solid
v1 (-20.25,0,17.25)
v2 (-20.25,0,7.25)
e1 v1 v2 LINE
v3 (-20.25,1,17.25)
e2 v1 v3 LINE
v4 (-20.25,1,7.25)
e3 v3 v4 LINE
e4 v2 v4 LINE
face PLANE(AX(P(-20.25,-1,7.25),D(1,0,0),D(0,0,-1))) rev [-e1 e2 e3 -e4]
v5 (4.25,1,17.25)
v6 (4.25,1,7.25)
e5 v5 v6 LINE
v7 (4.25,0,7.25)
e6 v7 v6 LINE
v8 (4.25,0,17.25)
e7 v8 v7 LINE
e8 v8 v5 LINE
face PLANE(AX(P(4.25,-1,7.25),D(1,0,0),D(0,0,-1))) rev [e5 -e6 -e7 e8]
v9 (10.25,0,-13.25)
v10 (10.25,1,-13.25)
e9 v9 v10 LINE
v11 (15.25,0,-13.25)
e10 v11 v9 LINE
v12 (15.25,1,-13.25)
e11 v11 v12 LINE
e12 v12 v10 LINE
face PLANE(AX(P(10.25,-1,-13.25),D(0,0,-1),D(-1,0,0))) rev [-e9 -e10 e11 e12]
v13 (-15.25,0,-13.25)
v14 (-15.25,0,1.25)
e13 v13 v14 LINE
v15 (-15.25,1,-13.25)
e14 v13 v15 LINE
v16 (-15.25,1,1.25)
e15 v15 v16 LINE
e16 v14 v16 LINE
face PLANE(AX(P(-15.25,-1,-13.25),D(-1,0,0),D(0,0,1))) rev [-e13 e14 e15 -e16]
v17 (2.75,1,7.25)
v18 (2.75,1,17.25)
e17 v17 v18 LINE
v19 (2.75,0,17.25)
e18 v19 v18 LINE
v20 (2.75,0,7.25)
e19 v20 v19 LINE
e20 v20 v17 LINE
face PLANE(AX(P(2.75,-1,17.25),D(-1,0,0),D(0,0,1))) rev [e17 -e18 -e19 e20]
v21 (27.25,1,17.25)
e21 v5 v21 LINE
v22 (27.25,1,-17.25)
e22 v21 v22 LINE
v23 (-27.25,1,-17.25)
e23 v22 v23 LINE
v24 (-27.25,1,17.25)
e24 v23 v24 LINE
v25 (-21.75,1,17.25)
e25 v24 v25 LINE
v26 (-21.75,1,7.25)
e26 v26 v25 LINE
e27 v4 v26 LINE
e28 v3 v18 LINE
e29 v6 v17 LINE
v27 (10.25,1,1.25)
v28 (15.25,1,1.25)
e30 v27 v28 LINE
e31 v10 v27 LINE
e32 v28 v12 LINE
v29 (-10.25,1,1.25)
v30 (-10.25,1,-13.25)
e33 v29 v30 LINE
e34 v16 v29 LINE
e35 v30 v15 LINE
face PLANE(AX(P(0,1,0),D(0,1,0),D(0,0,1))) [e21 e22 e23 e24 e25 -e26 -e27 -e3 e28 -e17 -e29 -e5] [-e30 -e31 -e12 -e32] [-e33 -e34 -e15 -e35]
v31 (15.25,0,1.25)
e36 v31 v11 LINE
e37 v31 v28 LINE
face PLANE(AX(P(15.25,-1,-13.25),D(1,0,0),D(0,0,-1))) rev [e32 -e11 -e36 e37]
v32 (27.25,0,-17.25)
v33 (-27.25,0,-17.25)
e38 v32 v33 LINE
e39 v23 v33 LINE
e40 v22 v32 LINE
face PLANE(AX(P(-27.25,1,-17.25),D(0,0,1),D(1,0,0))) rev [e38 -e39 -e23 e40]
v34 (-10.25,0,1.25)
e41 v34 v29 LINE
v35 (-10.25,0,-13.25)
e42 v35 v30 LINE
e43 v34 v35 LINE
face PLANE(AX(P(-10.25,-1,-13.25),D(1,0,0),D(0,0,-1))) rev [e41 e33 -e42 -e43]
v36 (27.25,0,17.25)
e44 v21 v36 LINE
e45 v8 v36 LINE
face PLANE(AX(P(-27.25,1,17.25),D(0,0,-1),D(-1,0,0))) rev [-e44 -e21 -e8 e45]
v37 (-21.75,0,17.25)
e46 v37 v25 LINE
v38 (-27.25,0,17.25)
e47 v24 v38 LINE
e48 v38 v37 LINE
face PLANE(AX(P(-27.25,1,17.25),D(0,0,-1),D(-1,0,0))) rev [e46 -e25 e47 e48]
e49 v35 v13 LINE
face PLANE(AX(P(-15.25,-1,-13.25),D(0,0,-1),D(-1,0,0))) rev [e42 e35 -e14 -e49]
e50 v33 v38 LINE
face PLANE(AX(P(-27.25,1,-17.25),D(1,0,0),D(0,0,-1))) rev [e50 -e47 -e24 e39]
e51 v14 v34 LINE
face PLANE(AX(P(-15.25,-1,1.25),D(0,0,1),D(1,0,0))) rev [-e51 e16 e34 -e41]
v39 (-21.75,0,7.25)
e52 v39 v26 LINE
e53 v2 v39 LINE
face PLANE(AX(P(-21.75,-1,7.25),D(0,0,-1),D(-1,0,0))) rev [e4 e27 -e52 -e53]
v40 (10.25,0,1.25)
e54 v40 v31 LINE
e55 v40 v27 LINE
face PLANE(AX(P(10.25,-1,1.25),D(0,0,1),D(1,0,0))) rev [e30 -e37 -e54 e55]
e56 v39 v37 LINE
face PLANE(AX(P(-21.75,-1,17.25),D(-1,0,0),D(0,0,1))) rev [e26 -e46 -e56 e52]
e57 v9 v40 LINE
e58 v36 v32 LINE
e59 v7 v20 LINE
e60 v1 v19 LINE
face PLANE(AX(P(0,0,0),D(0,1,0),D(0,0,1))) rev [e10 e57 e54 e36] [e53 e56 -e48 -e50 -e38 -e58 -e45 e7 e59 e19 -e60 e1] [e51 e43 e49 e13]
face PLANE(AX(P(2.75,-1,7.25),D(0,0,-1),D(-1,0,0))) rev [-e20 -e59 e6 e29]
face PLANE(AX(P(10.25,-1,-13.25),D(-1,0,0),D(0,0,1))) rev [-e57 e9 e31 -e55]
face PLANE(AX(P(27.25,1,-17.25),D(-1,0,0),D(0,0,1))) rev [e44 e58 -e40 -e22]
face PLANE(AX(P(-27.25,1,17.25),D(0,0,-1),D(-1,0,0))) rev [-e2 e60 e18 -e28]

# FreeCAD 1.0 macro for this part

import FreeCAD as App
import Part
import Sketcher
from FreeCAD import Vector
Q = App.Units.Quantity


def add_polygon(sketch, points):
    """Adds a closed chain of lines whose ends are joined by coincident constraints."""
    first, n = sketch.GeometryCount, len(points)
    for a, b in zip(points, points[1:] + points[:1]):
        sketch.addGeometry(Part.LineSegment(App.Vector(*a, 0), App.Vector(*b, 0)), False)
    for i in range(n):
        sketch.addConstraint(Sketcher.Constraint("Coincident", first + i, 2, first + (i + 1) % n, 1))

doc = App.newDocument("Part")
body = doc.addObject("PartDesign::Body", "Body")

sketch1 = body.newObject("Sketcher::SketchObject", "Sketch")
sketch1.AttachmentSupport = (doc.getObject("XZ_Plane"), [""])
sketch1.MapMode = "FlatFace"
add_polygon(sketch1, [(-27.25, -17.25), (-27.25, 17.25), (27.25, 17.25), (27.25, -17.25)])
sketch1.addConstraint(Sketcher.Constraint("Vertical", 0))
sketch1.addConstraint(Sketcher.Constraint("Horizontal", 1))
sketch1.addConstraint(Sketcher.Constraint("Vertical", 2))
sketch1.addConstraint(Sketcher.Constraint("Horizontal", 3))
sketch1.addConstraint(Sketcher.Constraint("Symmetric", 0, 2, 2, 2, -1, 1))
sketch1.addConstraint(Sketcher.Constraint("DistanceX", 1, 1, 1, 2, Q("54.5 mm")))
sketch1.addConstraint(Sketcher.Constraint("DistanceY", 0, 1, 0, 2, Q("34.5 mm")))
pad1 = body.newObject("PartDesign::Pad", "Pad")
pad1.Profile = sketch1
pad1.Length = 1
pad1.Reversed = True

sketch2 = body.newObject("Sketcher::SketchObject", "Sketch001")
sketch2.AttachmentSupport = (doc.getObject("XZ_Plane"), [""])
sketch2.MapMode = "FlatFace"
sketch2.AttachmentOffset = App.Placement(Vector(0, 0, -1), App.Rotation())
add_polygon(sketch2, [(-15.25, -13.25), (-15.25, 1.25), (-10.25, 1.25), (-10.25, -13.25)])
sketch2.addConstraint(Sketcher.Constraint("Vertical", 0))
sketch2.addConstraint(Sketcher.Constraint("Horizontal", 1))
sketch2.addConstraint(Sketcher.Constraint("Vertical", 2))
sketch2.addConstraint(Sketcher.Constraint("Horizontal", 3))
sketch2.addConstraint(Sketcher.Constraint("DistanceX", 1, 1, 1, 2, Q("5 mm")))
sketch2.addConstraint(Sketcher.Constraint("DistanceY", 0, 1, 0, 2, Q("14.5 mm")))
sketch2.addConstraint(Sketcher.Constraint("DistanceX", 0, 2, -1, 1, Q("15.25 mm")))
sketch2.addConstraint(Sketcher.Constraint("DistanceY", -1, 1, 0, 2, Q("1.25 mm")))
pocket1 = body.newObject("PartDesign::Pocket", "Pocket")
pocket1.Profile = sketch2
pocket1.Length = 2
pocket1.Reversed = True

sketch3 = body.newObject("Sketcher::SketchObject", "Sketch002")
sketch3.AttachmentSupport = (doc.getObject("XZ_Plane"), [""])
sketch3.MapMode = "FlatFace"
sketch3.AttachmentOffset = App.Placement(Vector(0, 0, -1), App.Rotation())
add_polygon(sketch3, [(10.25, -13.25), (10.25, 1.25), (15.25, 1.25), (15.25, -13.25)])
sketch3.addConstraint(Sketcher.Constraint("Vertical", 0))
sketch3.addConstraint(Sketcher.Constraint("Horizontal", 1))
sketch3.addConstraint(Sketcher.Constraint("Vertical", 2))
sketch3.addConstraint(Sketcher.Constraint("Horizontal", 3))
sketch3.addConstraint(Sketcher.Constraint("DistanceX", 1, 1, 1, 2, Q("5 mm")))
sketch3.addConstraint(Sketcher.Constraint("DistanceY", 0, 1, 0, 2, Q("14.5 mm")))
sketch3.addConstraint(Sketcher.Constraint("DistanceX", -1, 1, 0, 2, Q("10.25 mm")))
sketch3.addConstraint(Sketcher.Constraint("DistanceY", -1, 1, 0, 2, Q("1.25 mm")))
pocket2 = body.newObject("PartDesign::Pocket", "Pocket001")
pocket2.Profile = sketch3
pocket2.Length = 2
pocket2.Reversed = True

sketch4 = body.newObject("Sketcher::SketchObject", "Sketch003")
sketch4.AttachmentSupport = (doc.getObject("XZ_Plane"), [""])
sketch4.MapMode = "FlatFace"
sketch4.AttachmentOffset = App.Placement(Vector(0, 0, -1), App.Rotation())
add_polygon(sketch4, [(-21.75, 7.25), (-21.75, 17.25), (-20.25, 17.25), (-20.25, 7.25)])
sketch4.addConstraint(Sketcher.Constraint("Vertical", 0))
sketch4.addConstraint(Sketcher.Constraint("Horizontal", 1))
sketch4.addConstraint(Sketcher.Constraint("Vertical", 2))
sketch4.addConstraint(Sketcher.Constraint("Horizontal", 3))
sketch4.addConstraint(Sketcher.Constraint("DistanceY", 0, 1, 0, 2, Q("10 mm")))
sketch4.addConstraint(Sketcher.Constraint("DistanceX", 1, 1, 1, 2, Q("1.5 mm")))
sketch4.addConstraint(Sketcher.Constraint("DistanceX", 0, 2, -1, 1, Q("21.75 mm")))
sketch4.addConstraint(Sketcher.Constraint("DistanceY", -1, 1, 0, 2, Q("17.25 mm")))
pocket3 = body.newObject("PartDesign::Pocket", "Pocket002")
pocket3.Profile = sketch4
pocket3.Length = 2
pocket3.Reversed = True

sketch5 = body.newObject("Sketcher::SketchObject", "Sketch004")
sketch5.AttachmentSupport = (doc.getObject("XZ_Plane"), [""])
sketch5.MapMode = "FlatFace"
sketch5.AttachmentOffset = App.Placement(Vector(0, 0, -1), App.Rotation())
add_polygon(sketch5, [(2.75, 7.25), (2.75, 17.25), (4.25, 17.25), (4.25, 7.25)])
sketch5.addConstraint(Sketcher.Constraint("Vertical", 0))
sketch5.addConstraint(Sketcher.Constraint("Horizontal", 1))
sketch5.addConstraint(Sketcher.Constraint("Vertical", 2))
sketch5.addConstraint(Sketcher.Constraint("Horizontal", 3))
sketch5.addConstraint(Sketcher.Constraint("DistanceY", 0, 1, 0, 2, Q("10 mm")))
sketch5.addConstraint(Sketcher.Constraint("DistanceX", 1, 1, 1, 2, Q("1.5 mm")))
sketch5.addConstraint(Sketcher.Constraint("DistanceX", -1, 1, 0, 2, Q("2.75 mm")))
sketch5.addConstraint(Sketcher.Constraint("DistanceY", -1, 1, 0, 2, Q("17.25 mm")))
pocket4 = body.newObject("PartDesign::Pocket", "Pocket003")
pocket4.Profile = sketch5
pocket4.Length = 2
pocket4.Reversed = True

doc.recompute()
